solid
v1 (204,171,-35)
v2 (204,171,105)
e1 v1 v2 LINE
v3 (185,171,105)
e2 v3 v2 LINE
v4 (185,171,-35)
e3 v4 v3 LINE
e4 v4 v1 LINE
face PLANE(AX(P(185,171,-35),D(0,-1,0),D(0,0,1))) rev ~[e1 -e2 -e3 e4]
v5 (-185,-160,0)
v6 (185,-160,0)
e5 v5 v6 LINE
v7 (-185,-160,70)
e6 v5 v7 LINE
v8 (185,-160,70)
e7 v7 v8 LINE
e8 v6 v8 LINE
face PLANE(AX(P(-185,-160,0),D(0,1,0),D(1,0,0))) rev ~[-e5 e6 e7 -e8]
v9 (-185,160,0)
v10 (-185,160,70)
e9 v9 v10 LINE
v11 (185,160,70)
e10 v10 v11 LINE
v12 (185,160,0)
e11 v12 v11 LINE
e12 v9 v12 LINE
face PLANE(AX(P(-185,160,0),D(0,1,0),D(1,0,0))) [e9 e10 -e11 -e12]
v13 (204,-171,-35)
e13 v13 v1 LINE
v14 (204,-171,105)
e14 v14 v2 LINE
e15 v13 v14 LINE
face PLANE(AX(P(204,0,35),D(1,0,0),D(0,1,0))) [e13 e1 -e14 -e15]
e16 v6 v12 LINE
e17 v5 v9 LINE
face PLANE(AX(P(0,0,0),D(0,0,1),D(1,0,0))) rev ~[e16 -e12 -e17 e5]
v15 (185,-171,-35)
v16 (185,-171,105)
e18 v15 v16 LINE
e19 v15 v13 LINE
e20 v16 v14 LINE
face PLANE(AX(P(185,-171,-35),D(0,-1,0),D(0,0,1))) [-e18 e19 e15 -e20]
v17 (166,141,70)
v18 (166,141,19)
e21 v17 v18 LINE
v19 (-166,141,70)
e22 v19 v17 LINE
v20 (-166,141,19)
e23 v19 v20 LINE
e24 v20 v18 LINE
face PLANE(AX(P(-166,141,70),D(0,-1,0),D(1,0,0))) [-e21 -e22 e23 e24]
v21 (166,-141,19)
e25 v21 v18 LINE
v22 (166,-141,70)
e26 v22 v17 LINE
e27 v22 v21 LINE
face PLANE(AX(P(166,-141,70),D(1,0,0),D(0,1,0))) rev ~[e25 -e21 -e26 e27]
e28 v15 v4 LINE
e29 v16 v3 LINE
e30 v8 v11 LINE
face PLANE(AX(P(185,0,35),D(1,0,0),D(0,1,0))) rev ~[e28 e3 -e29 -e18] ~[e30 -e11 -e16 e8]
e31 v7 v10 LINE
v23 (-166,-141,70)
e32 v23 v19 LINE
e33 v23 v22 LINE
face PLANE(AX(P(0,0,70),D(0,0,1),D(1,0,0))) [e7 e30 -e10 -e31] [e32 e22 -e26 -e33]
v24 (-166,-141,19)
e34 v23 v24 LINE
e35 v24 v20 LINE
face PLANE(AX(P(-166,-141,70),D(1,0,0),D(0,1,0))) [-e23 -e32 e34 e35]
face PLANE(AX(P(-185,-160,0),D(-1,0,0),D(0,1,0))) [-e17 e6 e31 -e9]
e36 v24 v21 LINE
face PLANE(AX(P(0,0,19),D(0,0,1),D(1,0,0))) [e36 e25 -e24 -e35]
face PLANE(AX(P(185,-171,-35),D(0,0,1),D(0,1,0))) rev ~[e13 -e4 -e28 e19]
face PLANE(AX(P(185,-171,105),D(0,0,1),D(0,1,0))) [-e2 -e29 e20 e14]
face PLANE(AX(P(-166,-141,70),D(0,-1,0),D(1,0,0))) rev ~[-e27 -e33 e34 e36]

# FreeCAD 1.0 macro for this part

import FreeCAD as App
import Part
import Sketcher

V = App.Vector
Q = App.Units.Quantity

doc = App.newDocument("Part")
body = doc.addObject("PartDesign::Body", "Body")

# Sketch on XY plane
sketch1 = body.newObject("Sketcher::SketchObject", "Sketch")
sketch1.AttachmentSupport = (doc.getObject("XY_Plane"), [""])
sketch1.MapMode = "FlatFace"
sketch1.addGeometry([
    Part.LineSegment(V(-185, 160, 0), V(-185, -160, 0)),
    Part.LineSegment(V(-185, -160, 0), V(185, -160, 0)),
    Part.LineSegment(V(185, -160, 0), V(185, 160, 0)),
    Part.LineSegment(V(185, 160, 0), V(-185, 160, 0)),
], False)
sketch1.addConstraint([
    Sketcher.Constraint("Coincident", 0, 2, 1, 1),
    Sketcher.Constraint("Coincident", 1, 2, 2, 1),
    Sketcher.Constraint("Coincident", 2, 2, 3, 1),
    Sketcher.Constraint("Coincident", 3, 2, 0, 1),
    Sketcher.Constraint("Vertical", 0),
    Sketcher.Constraint("Horizontal", 1),
    Sketcher.Constraint("Vertical", 2),
    Sketcher.Constraint("Horizontal", 3),
    Sketcher.Constraint("Symmetric", 0, 2, 2, 2, -1, 1),
    Sketcher.Constraint("DistanceX", 1, 1, 1, 2, Q("370 mm")),
    Sketcher.Constraint("DistanceY", 0, 2, 0, 1, Q("320 mm")),
])
pad1 = body.newObject("PartDesign::Pad", "Pad")
pad1.Profile = sketch1
pad1.Length = 70

# Sketch on XY plane
sketch2 = body.newObject("Sketcher::SketchObject", "Sketch001")
sketch2.AttachmentSupport = (doc.getObject("XY_Plane"), [""])
sketch2.MapMode = "FlatFace"
sketch2.AttachmentOffset = App.Placement(V(0, 0, 70), App.Rotation())
sketch2.addGeometry([
    Part.LineSegment(V(-166, 141, 0), V(-166, -141, 0)),
    Part.LineSegment(V(-166, -141, 0), V(166, -141, 0)),
    Part.LineSegment(V(166, -141, 0), V(166, 141, 0)),
    Part.LineSegment(V(166, 141, 0), V(-166, 141, 0)),
], False)
sketch2.addConstraint([
    Sketcher.Constraint("Coincident", 0, 2, 1, 1),
    Sketcher.Constraint("Coincident", 1, 2, 2, 1),
    Sketcher.Constraint("Coincident", 2, 2, 3, 1),
    Sketcher.Constraint("Coincident", 3, 2, 0, 1),
    Sketcher.Constraint("Vertical", 0),
    Sketcher.Constraint("Horizontal", 1),
    Sketcher.Constraint("Vertical", 2),
    Sketcher.Constraint("Horizontal", 3),
    Sketcher.Constraint("Symmetric", 0, 2, 2, 2, -1, 1),
    Sketcher.Constraint("DistanceX", 1, 1, 1, 2, Q("332 mm")),
    Sketcher.Constraint("DistanceY", 0, 2, 0, 1, Q("282 mm")),
])
pocket1 = body.newObject("PartDesign::Pocket", "Pocket")
pocket1.Profile = sketch2
pocket1.Length = 51

# Sketch on YZ plane
sketch3 = body.newObject("Sketcher::SketchObject", "Sketch002")
sketch3.AttachmentSupport = (doc.getObject("YZ_Plane"), [""])
sketch3.MapMode = "FlatFace"
sketch3.AttachmentOffset = App.Placement(V(0, 0, 185), App.Rotation())
sketch3.addGeometry([
    Part.LineSegment(V(-171, 105, 0), V(-171, -35, 0)),
    Part.LineSegment(V(-171, -35, 0), V(171, -35, 0)),
    Part.LineSegment(V(171, -35, 0), V(171, 105, 0)),
    Part.LineSegment(V(171, 105, 0), V(-171, 105, 0)),
], False)
sketch3.addConstraint([
    Sketcher.Constraint("Coincident", 0, 2, 1, 1),
    Sketcher.Constraint("Coincident", 1, 2, 2, 1),
    Sketcher.Constraint("Coincident", 2, 2, 3, 1),
    Sketcher.Constraint("Coincident", 3, 2, 0, 1),
    Sketcher.Constraint("Vertical", 0),
    Sketcher.Constraint("Horizontal", 1),
    Sketcher.Constraint("Vertical", 2),
    Sketcher.Constraint("Horizontal", 3),
    Sketcher.Constraint("DistanceX", 1, 1, 1, 2, Q("342 mm")),
    Sketcher.Constraint("DistanceY", 0, 2, 0, 1, Q("140 mm")),
    Sketcher.Constraint("DistanceX", 0, 2, -1, 1, Q("171 mm")),
    Sketcher.Constraint("DistanceY", 0, 2, -1, 1, Q("35 mm")),
])
pad2 = body.newObject("PartDesign::Pad", "Pad001")
pad2.Profile = sketch3
pad2.Length = 19

doc.recompute()
